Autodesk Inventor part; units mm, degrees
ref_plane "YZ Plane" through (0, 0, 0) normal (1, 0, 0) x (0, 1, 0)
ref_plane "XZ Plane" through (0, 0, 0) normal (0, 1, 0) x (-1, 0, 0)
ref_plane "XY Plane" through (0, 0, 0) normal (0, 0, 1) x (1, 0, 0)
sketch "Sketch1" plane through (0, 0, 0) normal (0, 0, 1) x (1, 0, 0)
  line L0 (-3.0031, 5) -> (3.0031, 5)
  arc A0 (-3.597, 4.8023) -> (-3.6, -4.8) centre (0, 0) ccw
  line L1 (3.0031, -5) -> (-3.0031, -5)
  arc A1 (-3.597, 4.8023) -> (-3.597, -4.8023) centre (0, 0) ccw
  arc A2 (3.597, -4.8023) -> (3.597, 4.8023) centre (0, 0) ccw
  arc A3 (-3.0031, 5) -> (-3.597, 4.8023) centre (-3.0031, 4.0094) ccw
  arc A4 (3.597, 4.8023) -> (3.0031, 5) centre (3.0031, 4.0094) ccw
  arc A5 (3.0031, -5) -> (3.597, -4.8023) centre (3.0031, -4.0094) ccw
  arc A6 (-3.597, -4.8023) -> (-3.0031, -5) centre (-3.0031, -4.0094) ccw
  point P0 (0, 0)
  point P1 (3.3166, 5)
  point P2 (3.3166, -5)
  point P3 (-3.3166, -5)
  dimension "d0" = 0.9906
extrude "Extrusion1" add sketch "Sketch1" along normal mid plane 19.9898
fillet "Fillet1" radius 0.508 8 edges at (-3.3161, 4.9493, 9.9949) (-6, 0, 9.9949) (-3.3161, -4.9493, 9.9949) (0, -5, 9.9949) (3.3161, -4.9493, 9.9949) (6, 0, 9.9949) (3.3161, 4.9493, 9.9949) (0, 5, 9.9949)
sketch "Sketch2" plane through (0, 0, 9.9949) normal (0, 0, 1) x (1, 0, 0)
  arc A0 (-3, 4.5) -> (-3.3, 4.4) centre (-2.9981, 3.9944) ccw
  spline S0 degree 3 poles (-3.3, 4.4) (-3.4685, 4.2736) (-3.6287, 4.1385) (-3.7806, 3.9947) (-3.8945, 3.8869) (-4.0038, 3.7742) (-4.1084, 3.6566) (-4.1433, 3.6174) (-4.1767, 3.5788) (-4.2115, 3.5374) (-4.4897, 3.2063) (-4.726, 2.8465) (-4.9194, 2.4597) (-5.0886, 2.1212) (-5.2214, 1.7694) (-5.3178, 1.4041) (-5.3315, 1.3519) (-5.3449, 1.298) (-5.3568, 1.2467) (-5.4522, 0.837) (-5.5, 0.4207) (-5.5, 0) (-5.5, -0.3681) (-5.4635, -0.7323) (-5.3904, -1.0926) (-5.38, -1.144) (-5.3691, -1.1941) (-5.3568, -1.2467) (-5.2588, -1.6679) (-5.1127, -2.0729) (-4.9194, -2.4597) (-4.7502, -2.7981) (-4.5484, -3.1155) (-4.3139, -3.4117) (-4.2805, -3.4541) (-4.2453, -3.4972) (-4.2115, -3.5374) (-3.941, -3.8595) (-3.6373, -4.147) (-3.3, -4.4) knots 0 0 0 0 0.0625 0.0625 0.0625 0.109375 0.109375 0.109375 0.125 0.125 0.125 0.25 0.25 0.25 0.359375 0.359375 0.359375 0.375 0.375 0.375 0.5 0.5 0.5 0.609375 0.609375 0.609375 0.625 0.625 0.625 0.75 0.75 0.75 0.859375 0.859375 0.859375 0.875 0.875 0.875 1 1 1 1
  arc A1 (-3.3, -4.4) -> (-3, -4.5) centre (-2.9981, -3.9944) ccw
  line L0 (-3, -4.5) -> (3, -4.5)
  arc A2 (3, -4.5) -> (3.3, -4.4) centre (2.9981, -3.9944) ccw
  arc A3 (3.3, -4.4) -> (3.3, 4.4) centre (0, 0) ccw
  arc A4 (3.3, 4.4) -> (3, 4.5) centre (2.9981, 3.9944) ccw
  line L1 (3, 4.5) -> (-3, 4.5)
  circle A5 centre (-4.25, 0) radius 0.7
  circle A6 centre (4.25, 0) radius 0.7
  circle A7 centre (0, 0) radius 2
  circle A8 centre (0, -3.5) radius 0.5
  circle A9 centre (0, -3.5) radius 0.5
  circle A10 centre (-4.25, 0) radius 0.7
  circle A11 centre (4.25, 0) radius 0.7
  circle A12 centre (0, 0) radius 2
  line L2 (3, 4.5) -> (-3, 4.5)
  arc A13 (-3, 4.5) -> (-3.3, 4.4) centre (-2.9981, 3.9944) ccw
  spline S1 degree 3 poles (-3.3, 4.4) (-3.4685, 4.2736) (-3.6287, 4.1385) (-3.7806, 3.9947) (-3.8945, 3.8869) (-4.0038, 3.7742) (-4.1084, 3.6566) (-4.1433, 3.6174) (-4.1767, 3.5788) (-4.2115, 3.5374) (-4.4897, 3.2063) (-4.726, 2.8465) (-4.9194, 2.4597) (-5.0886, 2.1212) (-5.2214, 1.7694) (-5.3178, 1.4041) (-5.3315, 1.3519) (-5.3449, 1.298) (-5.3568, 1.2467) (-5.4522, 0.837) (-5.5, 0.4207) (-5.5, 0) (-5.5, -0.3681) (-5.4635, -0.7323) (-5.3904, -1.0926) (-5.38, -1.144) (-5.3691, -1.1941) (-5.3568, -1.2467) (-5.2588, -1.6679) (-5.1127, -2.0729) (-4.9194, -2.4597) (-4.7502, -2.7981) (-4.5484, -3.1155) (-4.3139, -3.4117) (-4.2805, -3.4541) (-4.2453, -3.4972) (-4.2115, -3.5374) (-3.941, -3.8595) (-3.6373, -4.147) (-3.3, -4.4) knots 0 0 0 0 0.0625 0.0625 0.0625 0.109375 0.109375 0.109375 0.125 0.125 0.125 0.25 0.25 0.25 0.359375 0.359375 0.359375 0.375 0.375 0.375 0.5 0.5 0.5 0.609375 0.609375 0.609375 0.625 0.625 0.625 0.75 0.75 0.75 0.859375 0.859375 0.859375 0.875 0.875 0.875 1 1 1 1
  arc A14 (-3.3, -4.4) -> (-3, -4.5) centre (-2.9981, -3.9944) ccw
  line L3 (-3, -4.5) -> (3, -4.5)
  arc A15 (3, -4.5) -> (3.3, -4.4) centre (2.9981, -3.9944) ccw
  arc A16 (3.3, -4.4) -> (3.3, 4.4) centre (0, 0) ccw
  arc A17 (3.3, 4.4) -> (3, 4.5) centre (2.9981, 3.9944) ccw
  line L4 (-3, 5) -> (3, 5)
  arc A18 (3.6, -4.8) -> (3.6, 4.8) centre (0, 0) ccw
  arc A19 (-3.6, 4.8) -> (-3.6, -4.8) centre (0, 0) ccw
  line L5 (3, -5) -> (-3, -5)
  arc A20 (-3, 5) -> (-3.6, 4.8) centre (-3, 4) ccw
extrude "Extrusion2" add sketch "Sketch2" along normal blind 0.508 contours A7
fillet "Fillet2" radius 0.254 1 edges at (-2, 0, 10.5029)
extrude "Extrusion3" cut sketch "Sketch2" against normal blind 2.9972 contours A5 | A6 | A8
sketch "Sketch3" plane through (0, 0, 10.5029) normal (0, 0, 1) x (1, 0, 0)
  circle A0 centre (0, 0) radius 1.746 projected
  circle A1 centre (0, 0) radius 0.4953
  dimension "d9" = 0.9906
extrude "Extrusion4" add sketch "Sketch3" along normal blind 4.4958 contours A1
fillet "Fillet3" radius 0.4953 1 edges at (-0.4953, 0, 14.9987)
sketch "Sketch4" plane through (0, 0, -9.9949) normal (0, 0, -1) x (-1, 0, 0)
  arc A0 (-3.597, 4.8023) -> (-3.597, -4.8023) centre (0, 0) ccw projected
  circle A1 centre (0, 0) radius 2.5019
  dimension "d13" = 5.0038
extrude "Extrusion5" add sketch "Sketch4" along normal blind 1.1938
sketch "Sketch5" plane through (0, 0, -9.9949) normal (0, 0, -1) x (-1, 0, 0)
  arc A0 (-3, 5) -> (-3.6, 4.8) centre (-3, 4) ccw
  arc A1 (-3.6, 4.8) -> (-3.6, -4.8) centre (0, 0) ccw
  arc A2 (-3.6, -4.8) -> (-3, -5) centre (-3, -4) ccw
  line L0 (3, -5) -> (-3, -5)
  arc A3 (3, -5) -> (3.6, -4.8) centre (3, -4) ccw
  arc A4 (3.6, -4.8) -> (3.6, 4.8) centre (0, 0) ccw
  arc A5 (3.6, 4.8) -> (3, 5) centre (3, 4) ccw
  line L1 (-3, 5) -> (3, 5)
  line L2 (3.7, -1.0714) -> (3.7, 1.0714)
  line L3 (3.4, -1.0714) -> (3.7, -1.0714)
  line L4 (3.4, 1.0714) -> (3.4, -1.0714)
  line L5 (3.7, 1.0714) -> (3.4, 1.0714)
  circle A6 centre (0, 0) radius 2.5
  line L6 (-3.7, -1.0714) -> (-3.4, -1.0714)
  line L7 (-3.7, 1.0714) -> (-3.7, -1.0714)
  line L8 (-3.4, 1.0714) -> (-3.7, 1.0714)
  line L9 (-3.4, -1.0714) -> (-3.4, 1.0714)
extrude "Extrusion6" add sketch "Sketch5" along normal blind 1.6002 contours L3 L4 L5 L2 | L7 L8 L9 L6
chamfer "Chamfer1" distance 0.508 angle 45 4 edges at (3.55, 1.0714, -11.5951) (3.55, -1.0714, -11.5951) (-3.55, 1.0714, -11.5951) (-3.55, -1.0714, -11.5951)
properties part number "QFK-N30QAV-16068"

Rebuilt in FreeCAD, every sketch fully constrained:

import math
import FreeCAD as App
import Part
import Sketcher
from FreeCAD import Vector
Q = App.Units.Quantity


def edges_at(feature, points):
    """Names of the edges that pass closest to the given points."""
    edges = feature.Shape.Edges
    near = lambda p: min(range(len(edges)), key=lambda i: edges[i].distToShape(Part.Vertex(*p))[0])
    return sorted({f"Edge{near(p) + 1}" for p in points})

doc = App.newDocument("Part")
params = doc.addObject("Spreadsheet::Sheet", "Params")
for row, (alias, value) in enumerate([
    ("sketch1_radius", "0.039 in"),
    ("pad1_length", "0.787 in"),
    ("fillet_radius", "0.02 in"),
    ("pad2_length", "0.02 in"),
    ("fillet2_radius", "0.01 in"),
    ("pocket1_length", "0.118 in"),
    ("sketch4_diameter", "0.039 in"),
    ("pad3_length", "0.177 in"),
    ("fillet3_radius", "0.0195 in"),
    ("sketch5_diameter", "0.197 in"),
    ("pad4_length", "0.047 in"),
    ("pad5_length", "0.063 in"),
    ("chamfer_size", "0.02 in"),
], start=1):
    params.set(f"A{row}", alias)
    params.set(f"B{row}", "=" + value)
    params.setAlias(f"B{row}", alias)

body = doc.addObject("PartDesign::Body", "Body")

sketch1 = body.newObject("Sketcher::SketchObject", "Sketch")
sketch1.AttachmentSupport = (doc.getObject("XY_Plane"), [""])
sketch1.MapMode = "FlatFace"
sketch1.addGeometry(Part.LineSegment(Vector(3.0031, 5, 0), Vector(-3.0031, 5, 0)), False)
sketch1.addGeometry(Part.ArcOfCircle(Part.Circle(Vector(-3.0031, 4.0094, 0), Vector(0, 0, 1), 0.9906), math.radians(90), math.radians(127)), False)
sketch1.addGeometry(Part.ArcOfCircle(Part.Circle(Vector(0, 0, 0), Vector(0, 0, 1), 6), math.radians(127), math.radians(233)), False)
sketch1.addGeometry(Part.ArcOfCircle(Part.Circle(Vector(0, 0, 0), Vector(0, 0, 1), 6), math.radians(-126.87), math.radians(-126.83)), False)
sketch1.addGeometry(Part.ArcOfCircle(Part.Circle(Vector(-3.0031, -4.0094, 0), Vector(0, 0, 1), 0.9907), math.radians(-127), math.radians(-90)), False)
sketch1.addGeometry(Part.LineSegment(Vector(-3.0031, -5, 0), Vector(3.0031, -5, 0)), False)
sketch1.addGeometry(Part.ArcOfCircle(Part.Circle(Vector(3.0031, -4.0094, 0), Vector(0, 0, 1), 0.9906), math.radians(-90), math.radians(-53)), False)
sketch1.addGeometry(Part.ArcOfCircle(Part.Circle(Vector(0, 0, 0), Vector(0, 0, 1), 6), math.radians(-53), math.radians(53)), False)
sketch1.addGeometry(Part.ArcOfCircle(Part.Circle(Vector(3.0031, 4.0094, 0), Vector(0, 0, 1), 0.9907), math.radians(53), math.radians(90)), False)
sketch1.addConstraint(Sketcher.Constraint("Tangent", 0, 2, 1, 1))
sketch1.addConstraint(Sketcher.Constraint("Tangent", 1, 2, 2, 1))
sketch1.addConstraint(Sketcher.Constraint("Tangent", 2, 2, 3, 1))
sketch1.addConstraint(Sketcher.Constraint("Tangent", 3, 2, 4, 1))
sketch1.addConstraint(Sketcher.Constraint("Tangent", 4, 2, 5, 1))
sketch1.addConstraint(Sketcher.Constraint("Tangent", 5, 2, 6, 1))
sketch1.addConstraint(Sketcher.Constraint("Tangent", 6, 2, 7, 1))
sketch1.addConstraint(Sketcher.Constraint("Tangent", 7, 2, 8, 1))
sketch1.addConstraint(Sketcher.Constraint("Tangent", 8, 2, 0, 1))
sketch1.addConstraint(Sketcher.Constraint("Horizontal", 0))
sketch1.addConstraint(Sketcher.Constraint("Horizontal", 5))
sketch1.addConstraint(Sketcher.Constraint("Coincident", 2, 3, -1, 1))
sketch1.addConstraint(Sketcher.Constraint("Coincident", 7, 3, -1, 1))
sketch1.addConstraint(Sketcher.Constraint("Equal", 2, 3))
sketch1.addConstraint(Sketcher.Constraint("Equal", 1, 4))
sketch1.addConstraint(Sketcher.Constraint("Equal", 4, 6))
sketch1.addConstraint(Sketcher.Constraint("Equal", 3, 7))
sketch1.addConstraint(Sketcher.Constraint("Equal", 6, 8))
sketch1.addConstraint(Sketcher.Constraint("Vertical", 1, 3, 4, 3))
sketch1.addConstraint(Sketcher.Constraint("Radius", 1, Q("0.039 in")))
sketch1.addConstraint(Sketcher.Constraint("Radius", 2, Q("6 mm")))
sketch1.addConstraint(Sketcher.Constraint("DistanceX", 0, 2, 0, 1, Q("6.0062 mm")))
sketch1.addConstraint(Sketcher.Constraint("DistanceX", 2, 2, 4, 3, Q("0.0235 in")))
sketch1.setExpression("Constraints[19]", "Params.sketch1_radius")
pad1 = body.newObject("PartDesign::Pad", "Pad")
pad1.Profile = sketch1
pad1.setExpression("Length", "Params.pad1_length")
pad1.Midplane = True
doc.recompute()

fillet = body.newObject("PartDesign::Fillet", "Fillet")
fillet.Base = (pad1, edges_at(pad1, [
    (-3.316, 4.949, 9.995),
    (-6, 0, 9.995),
    (-3.316, -4.949, 9.995),
    (0, -5, 9.995),
    (3.316, -4.949, 9.995),
    (6, 0, 9.995),
    (3.316, 4.949, 9.995),
    (0, 5, 9.995),
]))
fillet.setExpression("Radius", "Params.fillet_radius")

sketch2 = body.newObject("Sketcher::SketchObject", "Sketch001")
sketch2.AttachmentSupport = (doc.getObject("XY_Plane"), [""])
sketch2.MapMode = "FlatFace"
sketch2.AttachmentOffset = App.Placement(Vector(0, 0, 0.3935 * 25.4), App.Rotation())
sketch2.addGeometry(Part.Circle(Vector(0, 0, 0), Vector(0, 0, 1), 2), False)
sketch2.addConstraint(Sketcher.Constraint("Coincident", 0, 3, -1, 1))
sketch2.addConstraint(Sketcher.Constraint("Diameter", 0, Q("4 mm")))
pad2 = body.newObject("PartDesign::Pad", "Pad001")
pad2.Profile = sketch2
pad2.setExpression("Length", "Params.pad2_length")
doc.recompute()

fillet2 = body.newObject("PartDesign::Fillet", "Fillet001")
fillet2.Base = (pad2, edges_at(pad2, [(-2, 0, 10.503)]))
fillet2.setExpression("Radius", "Params.fillet2_radius")

sketch3 = body.newObject("Sketcher::SketchObject", "Sketch002")
sketch3.AttachmentSupport = (doc.getObject("XY_Plane"), [""])
sketch3.MapMode = "FlatFace"
sketch3.AttachmentOffset = App.Placement(Vector(0, 0, 0.3935 * 25.4), App.Rotation())
sketch3.addGeometry(Part.Circle(Vector(-4.2, 0, 0), Vector(0, 0, 1), 0.7), False)
sketch3.addGeometry(Part.Circle(Vector(4.2, 0, 0), Vector(0, 0, 1), 0.7), False)
sketch3.addGeometry(Part.Circle(Vector(0, -3.5, 0), Vector(0, 0, 1), 0.5), False)
sketch3.addConstraint(Sketcher.Constraint("Equal", 0, 1))
sketch3.addConstraint(Sketcher.Constraint("Symmetric", 0, 3, 1, 3, -1, 1))
sketch3.addConstraint(Sketcher.Constraint("PointOnObject", 0, 3, -1))
sketch3.addConstraint(Sketcher.Constraint("PointOnObject", 2, 3, -2))
sketch3.addConstraint(Sketcher.Constraint("Diameter", 0, Q("1.4 mm")))
sketch3.addConstraint(Sketcher.Constraint("Diameter", 2, Q("1 mm")))
sketch3.addConstraint(Sketcher.Constraint("DistanceY", 2, 3, -1, 1, Q("0.1378 in")))
sketch3.addConstraint(Sketcher.Constraint("DistanceX", 0, 3, -1, 1, Q("4.25 mm")))
pocket1 = body.newObject("PartDesign::Pocket", "Pocket")
pocket1.Profile = sketch3
pocket1.setExpression("Length", "Params.pocket1_length")

sketch4 = body.newObject("Sketcher::SketchObject", "Sketch003")
sketch4.AttachmentSupport = (doc.getObject("XY_Plane"), [""])
sketch4.MapMode = "FlatFace"
sketch4.AttachmentOffset = App.Placement(Vector(0, 0, 0.4135 * 25.4), App.Rotation())
sketch4.addGeometry(Part.Circle(Vector(0, 0, 0), Vector(0, 0, 1), 0.5), False)
sketch4.addConstraint(Sketcher.Constraint("Coincident", 0, 3, -1, 1))
sketch4.addConstraint(Sketcher.Constraint("Diameter", 0, Q("0.039 in")))
sketch4.setExpression("Constraints[1]", "Params.sketch4_diameter")
pad3 = body.newObject("PartDesign::Pad", "Pad002")
pad3.Profile = sketch4
pad3.setExpression("Length", "Params.pad3_length")
doc.recompute()

fillet3 = body.newObject("PartDesign::Fillet", "Fillet002")
fillet3.Base = (pad3, edges_at(pad3, [(-0.495, 0, 14.999)]))
fillet3.setExpression("Radius", "Params.fillet3_radius")

sketch5 = body.newObject("Sketcher::SketchObject", "Sketch004")
sketch5.AttachmentSupport = (doc.getObject("XY_Plane"), [""])
sketch5.MapMode = "FlatFace"
sketch5.AttachmentOffset = App.Placement(Vector(0, 0, -0.3935 * 25.4), App.Rotation())
sketch5.addGeometry(Part.Circle(Vector(0, 0, 0), Vector(0, 0, 1), 2.5), False)
sketch5.addConstraint(Sketcher.Constraint("Coincident", 0, 3, -1, 1))
sketch5.addConstraint(Sketcher.Constraint("Diameter", 0, Q("0.197 in")))
sketch5.setExpression("Constraints[1]", "Params.sketch5_diameter")
pad4 = body.newObject("PartDesign::Pad", "Pad003")
pad4.Profile = sketch5
pad4.setExpression("Length", "Params.pad4_length")
pad4.Reversed = True

sketch6 = body.newObject("Sketcher::SketchObject", "Sketch005")
sketch6.AttachmentSupport = (doc.getObject("XY_Plane"), [""])
sketch6.MapMode = "FlatFace"
sketch6.AttachmentOffset = App.Placement(Vector(0, 0, -0.3935 * 25.4), App.Rotation())
sketch6.addGeometry(Part.LineSegment(Vector(-3.4, -1.07, 0), Vector(-3.7, -1.07, 0)), False)
sketch6.addGeometry(Part.LineSegment(Vector(-3.7, -1.07, 0), Vector(-3.7, 1.07, 0)), False)
sketch6.addGeometry(Part.LineSegment(Vector(-3.7, 1.07, 0), Vector(-3.4, 1.07, 0)), False)
sketch6.addGeometry(Part.LineSegment(Vector(-3.4, 1.07, 0), Vector(-3.4, -1.07, 0)), False)
sketch6.addGeometry(Part.LineSegment(Vector(3.7, 1.07, 0), Vector(3.7, -1.07, 0)), False)
sketch6.addGeometry(Part.LineSegment(Vector(3.7, -1.07, 0), Vector(3.4, -1.07, 0)), False)
sketch6.addGeometry(Part.LineSegment(Vector(3.4, -1.07, 0), Vector(3.4, 1.07, 0)), False)
sketch6.addGeometry(Part.LineSegment(Vector(3.4, 1.07, 0), Vector(3.7, 1.07, 0)), False)
sketch6.addConstraint(Sketcher.Constraint("Coincident", 0, 2, 1, 1))
sketch6.addConstraint(Sketcher.Constraint("Coincident", 1, 2, 2, 1))
sketch6.addConstraint(Sketcher.Constraint("Coincident", 2, 2, 3, 1))
sketch6.addConstraint(Sketcher.Constraint("Coincident", 3, 2, 0, 1))
sketch6.addConstraint(Sketcher.Constraint("Coincident", 4, 2, 5, 1))
sketch6.addConstraint(Sketcher.Constraint("Coincident", 5, 2, 6, 1))
sketch6.addConstraint(Sketcher.Constraint("Coincident", 6, 2, 7, 1))
sketch6.addConstraint(Sketcher.Constraint("Coincident", 7, 2, 4, 1))
sketch6.addConstraint(Sketcher.Constraint("Horizontal", 0))
sketch6.addConstraint(Sketcher.Constraint("Vertical", 1))
sketch6.addConstraint(Sketcher.Constraint("Horizontal", 2))
sketch6.addConstraint(Sketcher.Constraint("Vertical", 3))
sketch6.addConstraint(Sketcher.Constraint("Vertical", 4))
sketch6.addConstraint(Sketcher.Constraint("Horizontal", 5))
sketch6.addConstraint(Sketcher.Constraint("Vertical", 6))
sketch6.addConstraint(Sketcher.Constraint("Horizontal", 7))
sketch6.addConstraint(Sketcher.Constraint("Symmetric", 1, 2, 4, 2, -1, 1))
sketch6.addConstraint(Sketcher.Constraint("Symmetric", 3, 2, 6, 2, -1, 1))
sketch6.addConstraint(Sketcher.Constraint("Horizontal", 3, 2, 4, 2))
sketch6.addConstraint(Sketcher.Constraint("DistanceX", 0, 2, 0, 1, Q("0.0118 in")))
sketch6.addConstraint(Sketcher.Constraint("DistanceY", 1, 1, 1, 2, Q("2.1428 mm")))
sketch6.addConstraint(Sketcher.Constraint("DistanceX", 0, 2, -1, 1, Q("3.7 mm")))
pad5 = body.newObject("PartDesign::Pad", "Pad004")
pad5.Profile = sketch6
pad5.setExpression("Length", "Params.pad5_length")
pad5.Reversed = True
doc.recompute()

chamfer = body.newObject("PartDesign::Chamfer", "Chamfer")
chamfer.Base = (pad5, edges_at(pad5, [
    (3.55, 1.071, -11.595),
    (3.55, -1.071, -11.595),
    (-3.55, 1.071, -11.595),
    (-3.55, -1.071, -11.595),
]))
chamfer.setExpression("Size", "Params.chamfer_size")

doc.recompute()
